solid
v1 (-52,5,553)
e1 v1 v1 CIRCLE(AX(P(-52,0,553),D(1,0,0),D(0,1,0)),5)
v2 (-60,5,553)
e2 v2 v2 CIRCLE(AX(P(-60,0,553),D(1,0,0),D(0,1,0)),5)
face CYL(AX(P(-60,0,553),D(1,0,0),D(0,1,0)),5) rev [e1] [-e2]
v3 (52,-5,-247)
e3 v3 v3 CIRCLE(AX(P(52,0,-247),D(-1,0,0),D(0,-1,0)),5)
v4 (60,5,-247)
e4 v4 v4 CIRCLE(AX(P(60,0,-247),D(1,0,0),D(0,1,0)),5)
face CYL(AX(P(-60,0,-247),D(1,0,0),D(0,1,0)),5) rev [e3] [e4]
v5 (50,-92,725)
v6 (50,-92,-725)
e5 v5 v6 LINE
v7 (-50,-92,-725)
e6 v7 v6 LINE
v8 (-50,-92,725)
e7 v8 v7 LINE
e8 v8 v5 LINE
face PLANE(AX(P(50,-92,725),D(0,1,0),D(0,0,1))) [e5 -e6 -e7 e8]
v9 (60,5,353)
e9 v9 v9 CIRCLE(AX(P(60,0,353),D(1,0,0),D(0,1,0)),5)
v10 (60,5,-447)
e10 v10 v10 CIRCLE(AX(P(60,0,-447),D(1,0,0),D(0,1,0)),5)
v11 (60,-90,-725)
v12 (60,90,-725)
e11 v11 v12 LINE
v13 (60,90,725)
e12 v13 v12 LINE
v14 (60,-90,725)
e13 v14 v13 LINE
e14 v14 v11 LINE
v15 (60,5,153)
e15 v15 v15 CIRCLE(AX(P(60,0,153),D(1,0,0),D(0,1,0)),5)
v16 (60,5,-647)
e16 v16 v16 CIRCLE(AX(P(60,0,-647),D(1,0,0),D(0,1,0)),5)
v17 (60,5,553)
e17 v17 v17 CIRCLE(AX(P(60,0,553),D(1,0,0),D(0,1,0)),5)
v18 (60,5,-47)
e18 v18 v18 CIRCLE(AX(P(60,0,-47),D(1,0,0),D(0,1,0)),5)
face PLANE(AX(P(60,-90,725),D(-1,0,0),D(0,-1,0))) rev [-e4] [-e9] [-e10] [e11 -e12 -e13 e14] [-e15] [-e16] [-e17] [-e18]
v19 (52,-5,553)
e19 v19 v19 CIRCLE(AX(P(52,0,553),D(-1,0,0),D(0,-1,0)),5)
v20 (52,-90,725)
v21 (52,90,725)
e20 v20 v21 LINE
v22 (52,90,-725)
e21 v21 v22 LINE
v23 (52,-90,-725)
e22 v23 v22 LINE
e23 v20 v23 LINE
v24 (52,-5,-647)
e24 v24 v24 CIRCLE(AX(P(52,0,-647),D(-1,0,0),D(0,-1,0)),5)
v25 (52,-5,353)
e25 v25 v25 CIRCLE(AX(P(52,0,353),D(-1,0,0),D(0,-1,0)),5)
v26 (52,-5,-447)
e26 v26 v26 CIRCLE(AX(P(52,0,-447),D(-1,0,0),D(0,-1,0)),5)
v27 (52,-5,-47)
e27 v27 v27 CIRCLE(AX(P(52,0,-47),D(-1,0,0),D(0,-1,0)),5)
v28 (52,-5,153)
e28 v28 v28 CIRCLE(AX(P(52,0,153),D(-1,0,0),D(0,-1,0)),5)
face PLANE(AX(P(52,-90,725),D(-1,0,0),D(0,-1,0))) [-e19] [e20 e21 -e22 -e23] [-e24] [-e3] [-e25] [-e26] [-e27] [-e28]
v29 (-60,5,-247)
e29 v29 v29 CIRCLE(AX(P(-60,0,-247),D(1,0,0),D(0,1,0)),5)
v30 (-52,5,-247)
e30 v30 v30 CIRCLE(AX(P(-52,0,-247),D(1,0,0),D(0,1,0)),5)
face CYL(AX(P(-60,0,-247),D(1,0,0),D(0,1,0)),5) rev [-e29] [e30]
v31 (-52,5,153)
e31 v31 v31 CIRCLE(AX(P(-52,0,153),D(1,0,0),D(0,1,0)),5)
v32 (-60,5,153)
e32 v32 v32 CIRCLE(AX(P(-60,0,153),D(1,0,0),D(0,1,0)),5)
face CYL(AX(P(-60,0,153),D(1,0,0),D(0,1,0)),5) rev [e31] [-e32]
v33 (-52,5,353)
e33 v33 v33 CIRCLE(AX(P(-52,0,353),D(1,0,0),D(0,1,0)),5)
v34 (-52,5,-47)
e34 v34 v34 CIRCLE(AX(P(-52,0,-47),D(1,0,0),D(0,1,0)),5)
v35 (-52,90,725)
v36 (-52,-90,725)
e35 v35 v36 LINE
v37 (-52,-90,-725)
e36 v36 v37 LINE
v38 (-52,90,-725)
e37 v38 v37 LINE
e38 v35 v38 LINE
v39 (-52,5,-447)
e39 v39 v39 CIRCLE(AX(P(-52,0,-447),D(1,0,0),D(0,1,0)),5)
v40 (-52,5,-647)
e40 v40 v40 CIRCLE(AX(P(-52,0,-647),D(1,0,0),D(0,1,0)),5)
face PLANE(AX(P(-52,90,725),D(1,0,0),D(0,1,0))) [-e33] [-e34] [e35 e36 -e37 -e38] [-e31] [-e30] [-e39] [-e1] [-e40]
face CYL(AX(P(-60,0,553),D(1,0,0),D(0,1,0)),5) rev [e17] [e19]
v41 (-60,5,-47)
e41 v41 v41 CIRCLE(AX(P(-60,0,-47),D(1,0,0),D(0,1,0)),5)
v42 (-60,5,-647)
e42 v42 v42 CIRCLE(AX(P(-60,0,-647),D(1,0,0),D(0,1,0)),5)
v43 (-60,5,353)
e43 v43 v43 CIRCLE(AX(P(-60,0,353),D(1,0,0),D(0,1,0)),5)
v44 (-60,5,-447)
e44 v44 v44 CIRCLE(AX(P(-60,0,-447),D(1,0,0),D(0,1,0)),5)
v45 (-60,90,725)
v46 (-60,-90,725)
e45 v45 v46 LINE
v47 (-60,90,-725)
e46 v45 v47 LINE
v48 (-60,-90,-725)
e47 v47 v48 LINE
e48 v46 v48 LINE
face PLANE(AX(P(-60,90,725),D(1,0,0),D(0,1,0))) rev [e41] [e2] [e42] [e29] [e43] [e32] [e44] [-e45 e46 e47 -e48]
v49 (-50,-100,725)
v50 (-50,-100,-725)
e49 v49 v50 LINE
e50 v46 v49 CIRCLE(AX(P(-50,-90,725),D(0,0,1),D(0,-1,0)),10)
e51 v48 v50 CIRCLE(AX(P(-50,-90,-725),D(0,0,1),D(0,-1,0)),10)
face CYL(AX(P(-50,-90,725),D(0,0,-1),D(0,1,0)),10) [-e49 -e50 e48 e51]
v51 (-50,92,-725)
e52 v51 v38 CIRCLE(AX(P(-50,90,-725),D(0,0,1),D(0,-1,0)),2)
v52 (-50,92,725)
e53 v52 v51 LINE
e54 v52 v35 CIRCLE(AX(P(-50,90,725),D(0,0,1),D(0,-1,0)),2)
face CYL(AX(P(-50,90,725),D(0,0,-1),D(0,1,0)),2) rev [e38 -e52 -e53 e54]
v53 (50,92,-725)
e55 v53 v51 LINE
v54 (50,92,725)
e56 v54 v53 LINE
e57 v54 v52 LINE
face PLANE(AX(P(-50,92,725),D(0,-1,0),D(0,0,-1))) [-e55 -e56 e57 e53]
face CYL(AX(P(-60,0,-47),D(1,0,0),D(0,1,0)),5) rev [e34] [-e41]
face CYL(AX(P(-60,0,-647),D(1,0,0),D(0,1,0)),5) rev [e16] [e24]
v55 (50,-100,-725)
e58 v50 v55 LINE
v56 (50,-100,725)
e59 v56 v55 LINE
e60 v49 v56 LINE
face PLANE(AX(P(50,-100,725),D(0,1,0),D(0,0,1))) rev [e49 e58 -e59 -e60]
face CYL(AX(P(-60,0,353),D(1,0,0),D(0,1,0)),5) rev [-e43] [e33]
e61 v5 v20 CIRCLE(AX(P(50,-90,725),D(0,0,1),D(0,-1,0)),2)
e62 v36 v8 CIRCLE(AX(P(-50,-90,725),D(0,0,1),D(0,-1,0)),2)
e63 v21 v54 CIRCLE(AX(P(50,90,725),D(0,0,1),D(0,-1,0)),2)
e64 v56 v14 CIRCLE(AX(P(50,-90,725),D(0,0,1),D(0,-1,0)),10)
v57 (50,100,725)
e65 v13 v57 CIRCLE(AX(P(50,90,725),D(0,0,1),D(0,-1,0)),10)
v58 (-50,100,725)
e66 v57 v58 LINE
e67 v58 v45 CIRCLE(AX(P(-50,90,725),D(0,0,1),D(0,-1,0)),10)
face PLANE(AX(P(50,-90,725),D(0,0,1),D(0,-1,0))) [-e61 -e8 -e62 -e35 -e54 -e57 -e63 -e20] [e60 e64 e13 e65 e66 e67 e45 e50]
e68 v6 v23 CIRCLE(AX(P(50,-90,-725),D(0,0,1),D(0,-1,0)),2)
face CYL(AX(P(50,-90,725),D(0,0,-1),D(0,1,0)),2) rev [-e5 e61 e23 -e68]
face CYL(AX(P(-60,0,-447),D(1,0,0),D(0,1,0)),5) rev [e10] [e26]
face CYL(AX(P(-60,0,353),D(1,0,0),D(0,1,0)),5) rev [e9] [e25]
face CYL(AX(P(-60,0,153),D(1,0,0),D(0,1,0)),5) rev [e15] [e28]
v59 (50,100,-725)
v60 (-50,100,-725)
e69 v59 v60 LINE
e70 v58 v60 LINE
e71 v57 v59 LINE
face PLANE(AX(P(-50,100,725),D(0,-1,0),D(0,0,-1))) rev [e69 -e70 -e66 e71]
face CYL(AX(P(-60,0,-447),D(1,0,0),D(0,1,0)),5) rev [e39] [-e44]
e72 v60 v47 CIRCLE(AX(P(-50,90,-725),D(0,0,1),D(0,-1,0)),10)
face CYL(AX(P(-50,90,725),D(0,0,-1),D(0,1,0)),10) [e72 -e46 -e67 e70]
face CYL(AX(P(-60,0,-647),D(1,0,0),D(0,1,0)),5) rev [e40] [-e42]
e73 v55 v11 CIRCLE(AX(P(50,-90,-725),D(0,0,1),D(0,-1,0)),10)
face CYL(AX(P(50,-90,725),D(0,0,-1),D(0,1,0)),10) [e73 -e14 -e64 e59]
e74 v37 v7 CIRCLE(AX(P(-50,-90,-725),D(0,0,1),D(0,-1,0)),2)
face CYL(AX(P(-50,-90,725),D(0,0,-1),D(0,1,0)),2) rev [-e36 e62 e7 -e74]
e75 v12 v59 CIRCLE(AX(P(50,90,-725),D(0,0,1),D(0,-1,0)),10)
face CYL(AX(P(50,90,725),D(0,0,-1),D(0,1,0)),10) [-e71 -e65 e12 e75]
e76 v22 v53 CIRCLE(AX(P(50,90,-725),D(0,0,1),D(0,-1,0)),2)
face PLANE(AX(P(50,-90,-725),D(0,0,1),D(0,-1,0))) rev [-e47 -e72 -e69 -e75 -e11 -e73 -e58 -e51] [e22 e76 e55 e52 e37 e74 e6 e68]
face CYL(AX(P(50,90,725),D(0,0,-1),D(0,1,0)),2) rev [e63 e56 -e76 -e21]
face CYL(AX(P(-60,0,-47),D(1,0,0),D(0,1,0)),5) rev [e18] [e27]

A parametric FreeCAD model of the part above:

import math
import FreeCAD as App
import Part
import Sketcher

V = App.Vector

doc = App.newDocument("Part")
body = doc.addObject("PartDesign::Body", "Body")

# Sketch on XY plane
sketch1 = body.newObject("Sketcher::SketchObject", "Sketch")
sketch1.AttachmentSupport = (doc.getObject("XY_Plane"), [""])
sketch1.MapMode = "FlatFace"
sketch1.AttachmentOffset = App.Placement(V(0, 0, -725), App.Rotation())
sketch1.addGeometry([
    Part.LineSegment(V(-60, 90, 0), V(-60, -90, 0)),  # 0
    Part.ArcOfCircle(Part.Circle(V(-50, -90, 0), V(0, 0, 1), 10), math.radians(180), math.radians(270)),  # 1
    Part.LineSegment(V(-50, -100, 0), V(50, -100, 0)),  # 2
    Part.ArcOfCircle(Part.Circle(V(50, -90, 0), V(0, 0, 1), 10), math.radians(-90), math.radians(0)),  # 3
    Part.LineSegment(V(60, -90, 0), V(60, 90, 0)),  # 4
    Part.ArcOfCircle(Part.Circle(V(50, 90, 0), V(0, 0, 1), 10), math.radians(0), math.radians(90)),  # 5
    Part.LineSegment(V(50, 100, 0), V(-50, 100, 0)),  # 6
    Part.ArcOfCircle(Part.Circle(V(-50, 90, 0), V(0, 0, 1), 10), math.radians(90), math.radians(180)),  # 7
    Part.LineSegment(V(-52, -90, 0), V(-52, 90, 0)),  # 8
    Part.ArcOfCircle(Part.Circle(V(-50, 90, 0), V(0, 0, 1), 2), math.radians(90), math.radians(180)),  # 9
    Part.LineSegment(V(-50, 92, 0), V(50, 92, 0)),  # 10
    Part.ArcOfCircle(Part.Circle(V(50, 90, 0), V(0, 0, 1), 2), math.radians(0), math.radians(90)),  # 11
    Part.LineSegment(V(52, 90, 0), V(52, -90, 0)),  # 12
    Part.ArcOfCircle(Part.Circle(V(50, -90, 0), V(0, 0, 1), 2), math.radians(-90), math.radians(0)),  # 13
    Part.LineSegment(V(50, -92, 0), V(-50, -92, 0)),  # 14
    Part.ArcOfCircle(Part.Circle(V(-50, -90, 0), V(0, 0, 1), 2), math.radians(-180), math.radians(-90)),  # 15
], False)
sketch1.addConstraint([
    Sketcher.Constraint("Tangent", 0, 2, 1, 1),
    Sketcher.Constraint("Tangent", 1, 2, 2, 1),
    Sketcher.Constraint("Tangent", 2, 2, 3, 1),
    Sketcher.Constraint("Tangent", 3, 2, 4, 1),
    Sketcher.Constraint("Tangent", 4, 2, 5, 1),
    Sketcher.Constraint("Tangent", 5, 2, 6, 1),
    Sketcher.Constraint("Tangent", 6, 2, 7, 1),
    Sketcher.Constraint("Tangent", 7, 2, 0, 1),
    Sketcher.Constraint("Tangent", 8, 2, 9, 2),
    Sketcher.Constraint("Tangent", 9, 1, 10, 1),
    Sketcher.Constraint("Tangent", 10, 2, 11, 2),
    Sketcher.Constraint("Tangent", 11, 1, 12, 1),
    Sketcher.Constraint("Tangent", 12, 2, 13, 2),
    Sketcher.Constraint("Tangent", 13, 1, 14, 1),
    Sketcher.Constraint("Tangent", 14, 2, 15, 2),
    Sketcher.Constraint("Tangent", 15, 1, 8, 1),
    Sketcher.Constraint("Vertical", 0),
    Sketcher.Constraint("Horizontal", 2),
    Sketcher.Constraint("Vertical", 4),
    Sketcher.Constraint("Horizontal", 6),
    Sketcher.Constraint("Vertical", 8),
    Sketcher.Constraint("Horizontal", 10),
    Sketcher.Constraint("Vertical", 12),
    Sketcher.Constraint("Horizontal", 14),
    Sketcher.Constraint("Coincident", 9, 3, 7, 3),
    Sketcher.Constraint("Coincident", 11, 3, 5, 3),
    Sketcher.Constraint("Coincident", 13, 3, 3, 3),
    Sketcher.Constraint("Equal", 1, 3),
    Sketcher.Constraint("Equal", 3, 5),
    Sketcher.Constraint("Equal", 5, 7),
    Sketcher.Constraint("Equal", 13, 15),
    Sketcher.Constraint("Symmetric", 1, 3, 5, 3, -1, 1),
    Sketcher.Constraint("Radius", 1, 10.0),
    Sketcher.Constraint("Radius", 9, 2.0),
    Sketcher.Constraint("DistanceX", 2, 1, 2, 2, 100.0),
    Sketcher.Constraint("DistanceY", 0, 2, 0, 1, 180.0),
])
pad1 = body.newObject("PartDesign::Pad", "Pad")
pad1.Profile = sketch1
pad1.Length = 1450

# Sketch on YZ plane
sketch2 = body.newObject("Sketcher::SketchObject", "Sketch001")
sketch2.AttachmentSupport = (doc.getObject("YZ_Plane"), [""])
sketch2.MapMode = "FlatFace"
sketch2.AttachmentOffset = App.Placement(V(0, 0, 60), App.Rotation())
sketch2.addGeometry([
    Part.Circle(V(0, -647, 0), V(0, 0, 1), 5),  # 0
    Part.Circle(V(0, -447, 0), V(0, 0, 1), 5),  # 1
    Part.Circle(V(0, -247, 0), V(0, 0, 1), 5),  # 2
    Part.Circle(V(0, -47, 0), V(0, 0, 1), 5),  # 3
    Part.Circle(V(0, 153, 0), V(0, 0, 1), 5),  # 4
    Part.Circle(V(0, 353, 0), V(0, 0, 1), 5),  # 5
    Part.Circle(V(0, 553, 0), V(0, 0, 1), 5),  # 6
], False)
sketch2.addConstraint([
    Sketcher.Constraint("Equal", 0, 1),
    Sketcher.Constraint("Equal", 1, 2),
    Sketcher.Constraint("Equal", 2, 3),
    Sketcher.Constraint("Equal", 3, 4),
    Sketcher.Constraint("Equal", 4, 5),
    Sketcher.Constraint("Equal", 5, 6),
    Sketcher.Constraint("PointOnObject", 0, 3, -2),
    Sketcher.Constraint("PointOnObject", 1, 3, -2),
    Sketcher.Constraint("PointOnObject", 2, 3, -2),
    Sketcher.Constraint("PointOnObject", 3, 3, -2),
    Sketcher.Constraint("PointOnObject", 4, 3, -2),
    Sketcher.Constraint("PointOnObject", 5, 3, -2),
    Sketcher.Constraint("PointOnObject", 6, 3, -2),
    Sketcher.Constraint("Diameter", 0, 10.0),
    Sketcher.Constraint("DistanceY", 0, 3, -1, 1, 647.0),
    Sketcher.Constraint("DistanceY", 1, 3, -1, 1, 447.0),
    Sketcher.Constraint("DistanceY", 2, 3, -1, 1, 247.0),
    Sketcher.Constraint("DistanceY", 3, 3, -1, 1, 47.0),
    Sketcher.Constraint("DistanceY", -1, 1, 4, 3, 153.0),
    Sketcher.Constraint("DistanceY", -1, 1, 5, 3, 353.0),
    Sketcher.Constraint("DistanceY", -1, 1, 6, 3, 553.0),
])
pocket1 = body.newObject("PartDesign::Pocket", "Pocket")
pocket1.Profile = sketch2
pocket1.Type = "ThroughAll"

doc.recompute()
